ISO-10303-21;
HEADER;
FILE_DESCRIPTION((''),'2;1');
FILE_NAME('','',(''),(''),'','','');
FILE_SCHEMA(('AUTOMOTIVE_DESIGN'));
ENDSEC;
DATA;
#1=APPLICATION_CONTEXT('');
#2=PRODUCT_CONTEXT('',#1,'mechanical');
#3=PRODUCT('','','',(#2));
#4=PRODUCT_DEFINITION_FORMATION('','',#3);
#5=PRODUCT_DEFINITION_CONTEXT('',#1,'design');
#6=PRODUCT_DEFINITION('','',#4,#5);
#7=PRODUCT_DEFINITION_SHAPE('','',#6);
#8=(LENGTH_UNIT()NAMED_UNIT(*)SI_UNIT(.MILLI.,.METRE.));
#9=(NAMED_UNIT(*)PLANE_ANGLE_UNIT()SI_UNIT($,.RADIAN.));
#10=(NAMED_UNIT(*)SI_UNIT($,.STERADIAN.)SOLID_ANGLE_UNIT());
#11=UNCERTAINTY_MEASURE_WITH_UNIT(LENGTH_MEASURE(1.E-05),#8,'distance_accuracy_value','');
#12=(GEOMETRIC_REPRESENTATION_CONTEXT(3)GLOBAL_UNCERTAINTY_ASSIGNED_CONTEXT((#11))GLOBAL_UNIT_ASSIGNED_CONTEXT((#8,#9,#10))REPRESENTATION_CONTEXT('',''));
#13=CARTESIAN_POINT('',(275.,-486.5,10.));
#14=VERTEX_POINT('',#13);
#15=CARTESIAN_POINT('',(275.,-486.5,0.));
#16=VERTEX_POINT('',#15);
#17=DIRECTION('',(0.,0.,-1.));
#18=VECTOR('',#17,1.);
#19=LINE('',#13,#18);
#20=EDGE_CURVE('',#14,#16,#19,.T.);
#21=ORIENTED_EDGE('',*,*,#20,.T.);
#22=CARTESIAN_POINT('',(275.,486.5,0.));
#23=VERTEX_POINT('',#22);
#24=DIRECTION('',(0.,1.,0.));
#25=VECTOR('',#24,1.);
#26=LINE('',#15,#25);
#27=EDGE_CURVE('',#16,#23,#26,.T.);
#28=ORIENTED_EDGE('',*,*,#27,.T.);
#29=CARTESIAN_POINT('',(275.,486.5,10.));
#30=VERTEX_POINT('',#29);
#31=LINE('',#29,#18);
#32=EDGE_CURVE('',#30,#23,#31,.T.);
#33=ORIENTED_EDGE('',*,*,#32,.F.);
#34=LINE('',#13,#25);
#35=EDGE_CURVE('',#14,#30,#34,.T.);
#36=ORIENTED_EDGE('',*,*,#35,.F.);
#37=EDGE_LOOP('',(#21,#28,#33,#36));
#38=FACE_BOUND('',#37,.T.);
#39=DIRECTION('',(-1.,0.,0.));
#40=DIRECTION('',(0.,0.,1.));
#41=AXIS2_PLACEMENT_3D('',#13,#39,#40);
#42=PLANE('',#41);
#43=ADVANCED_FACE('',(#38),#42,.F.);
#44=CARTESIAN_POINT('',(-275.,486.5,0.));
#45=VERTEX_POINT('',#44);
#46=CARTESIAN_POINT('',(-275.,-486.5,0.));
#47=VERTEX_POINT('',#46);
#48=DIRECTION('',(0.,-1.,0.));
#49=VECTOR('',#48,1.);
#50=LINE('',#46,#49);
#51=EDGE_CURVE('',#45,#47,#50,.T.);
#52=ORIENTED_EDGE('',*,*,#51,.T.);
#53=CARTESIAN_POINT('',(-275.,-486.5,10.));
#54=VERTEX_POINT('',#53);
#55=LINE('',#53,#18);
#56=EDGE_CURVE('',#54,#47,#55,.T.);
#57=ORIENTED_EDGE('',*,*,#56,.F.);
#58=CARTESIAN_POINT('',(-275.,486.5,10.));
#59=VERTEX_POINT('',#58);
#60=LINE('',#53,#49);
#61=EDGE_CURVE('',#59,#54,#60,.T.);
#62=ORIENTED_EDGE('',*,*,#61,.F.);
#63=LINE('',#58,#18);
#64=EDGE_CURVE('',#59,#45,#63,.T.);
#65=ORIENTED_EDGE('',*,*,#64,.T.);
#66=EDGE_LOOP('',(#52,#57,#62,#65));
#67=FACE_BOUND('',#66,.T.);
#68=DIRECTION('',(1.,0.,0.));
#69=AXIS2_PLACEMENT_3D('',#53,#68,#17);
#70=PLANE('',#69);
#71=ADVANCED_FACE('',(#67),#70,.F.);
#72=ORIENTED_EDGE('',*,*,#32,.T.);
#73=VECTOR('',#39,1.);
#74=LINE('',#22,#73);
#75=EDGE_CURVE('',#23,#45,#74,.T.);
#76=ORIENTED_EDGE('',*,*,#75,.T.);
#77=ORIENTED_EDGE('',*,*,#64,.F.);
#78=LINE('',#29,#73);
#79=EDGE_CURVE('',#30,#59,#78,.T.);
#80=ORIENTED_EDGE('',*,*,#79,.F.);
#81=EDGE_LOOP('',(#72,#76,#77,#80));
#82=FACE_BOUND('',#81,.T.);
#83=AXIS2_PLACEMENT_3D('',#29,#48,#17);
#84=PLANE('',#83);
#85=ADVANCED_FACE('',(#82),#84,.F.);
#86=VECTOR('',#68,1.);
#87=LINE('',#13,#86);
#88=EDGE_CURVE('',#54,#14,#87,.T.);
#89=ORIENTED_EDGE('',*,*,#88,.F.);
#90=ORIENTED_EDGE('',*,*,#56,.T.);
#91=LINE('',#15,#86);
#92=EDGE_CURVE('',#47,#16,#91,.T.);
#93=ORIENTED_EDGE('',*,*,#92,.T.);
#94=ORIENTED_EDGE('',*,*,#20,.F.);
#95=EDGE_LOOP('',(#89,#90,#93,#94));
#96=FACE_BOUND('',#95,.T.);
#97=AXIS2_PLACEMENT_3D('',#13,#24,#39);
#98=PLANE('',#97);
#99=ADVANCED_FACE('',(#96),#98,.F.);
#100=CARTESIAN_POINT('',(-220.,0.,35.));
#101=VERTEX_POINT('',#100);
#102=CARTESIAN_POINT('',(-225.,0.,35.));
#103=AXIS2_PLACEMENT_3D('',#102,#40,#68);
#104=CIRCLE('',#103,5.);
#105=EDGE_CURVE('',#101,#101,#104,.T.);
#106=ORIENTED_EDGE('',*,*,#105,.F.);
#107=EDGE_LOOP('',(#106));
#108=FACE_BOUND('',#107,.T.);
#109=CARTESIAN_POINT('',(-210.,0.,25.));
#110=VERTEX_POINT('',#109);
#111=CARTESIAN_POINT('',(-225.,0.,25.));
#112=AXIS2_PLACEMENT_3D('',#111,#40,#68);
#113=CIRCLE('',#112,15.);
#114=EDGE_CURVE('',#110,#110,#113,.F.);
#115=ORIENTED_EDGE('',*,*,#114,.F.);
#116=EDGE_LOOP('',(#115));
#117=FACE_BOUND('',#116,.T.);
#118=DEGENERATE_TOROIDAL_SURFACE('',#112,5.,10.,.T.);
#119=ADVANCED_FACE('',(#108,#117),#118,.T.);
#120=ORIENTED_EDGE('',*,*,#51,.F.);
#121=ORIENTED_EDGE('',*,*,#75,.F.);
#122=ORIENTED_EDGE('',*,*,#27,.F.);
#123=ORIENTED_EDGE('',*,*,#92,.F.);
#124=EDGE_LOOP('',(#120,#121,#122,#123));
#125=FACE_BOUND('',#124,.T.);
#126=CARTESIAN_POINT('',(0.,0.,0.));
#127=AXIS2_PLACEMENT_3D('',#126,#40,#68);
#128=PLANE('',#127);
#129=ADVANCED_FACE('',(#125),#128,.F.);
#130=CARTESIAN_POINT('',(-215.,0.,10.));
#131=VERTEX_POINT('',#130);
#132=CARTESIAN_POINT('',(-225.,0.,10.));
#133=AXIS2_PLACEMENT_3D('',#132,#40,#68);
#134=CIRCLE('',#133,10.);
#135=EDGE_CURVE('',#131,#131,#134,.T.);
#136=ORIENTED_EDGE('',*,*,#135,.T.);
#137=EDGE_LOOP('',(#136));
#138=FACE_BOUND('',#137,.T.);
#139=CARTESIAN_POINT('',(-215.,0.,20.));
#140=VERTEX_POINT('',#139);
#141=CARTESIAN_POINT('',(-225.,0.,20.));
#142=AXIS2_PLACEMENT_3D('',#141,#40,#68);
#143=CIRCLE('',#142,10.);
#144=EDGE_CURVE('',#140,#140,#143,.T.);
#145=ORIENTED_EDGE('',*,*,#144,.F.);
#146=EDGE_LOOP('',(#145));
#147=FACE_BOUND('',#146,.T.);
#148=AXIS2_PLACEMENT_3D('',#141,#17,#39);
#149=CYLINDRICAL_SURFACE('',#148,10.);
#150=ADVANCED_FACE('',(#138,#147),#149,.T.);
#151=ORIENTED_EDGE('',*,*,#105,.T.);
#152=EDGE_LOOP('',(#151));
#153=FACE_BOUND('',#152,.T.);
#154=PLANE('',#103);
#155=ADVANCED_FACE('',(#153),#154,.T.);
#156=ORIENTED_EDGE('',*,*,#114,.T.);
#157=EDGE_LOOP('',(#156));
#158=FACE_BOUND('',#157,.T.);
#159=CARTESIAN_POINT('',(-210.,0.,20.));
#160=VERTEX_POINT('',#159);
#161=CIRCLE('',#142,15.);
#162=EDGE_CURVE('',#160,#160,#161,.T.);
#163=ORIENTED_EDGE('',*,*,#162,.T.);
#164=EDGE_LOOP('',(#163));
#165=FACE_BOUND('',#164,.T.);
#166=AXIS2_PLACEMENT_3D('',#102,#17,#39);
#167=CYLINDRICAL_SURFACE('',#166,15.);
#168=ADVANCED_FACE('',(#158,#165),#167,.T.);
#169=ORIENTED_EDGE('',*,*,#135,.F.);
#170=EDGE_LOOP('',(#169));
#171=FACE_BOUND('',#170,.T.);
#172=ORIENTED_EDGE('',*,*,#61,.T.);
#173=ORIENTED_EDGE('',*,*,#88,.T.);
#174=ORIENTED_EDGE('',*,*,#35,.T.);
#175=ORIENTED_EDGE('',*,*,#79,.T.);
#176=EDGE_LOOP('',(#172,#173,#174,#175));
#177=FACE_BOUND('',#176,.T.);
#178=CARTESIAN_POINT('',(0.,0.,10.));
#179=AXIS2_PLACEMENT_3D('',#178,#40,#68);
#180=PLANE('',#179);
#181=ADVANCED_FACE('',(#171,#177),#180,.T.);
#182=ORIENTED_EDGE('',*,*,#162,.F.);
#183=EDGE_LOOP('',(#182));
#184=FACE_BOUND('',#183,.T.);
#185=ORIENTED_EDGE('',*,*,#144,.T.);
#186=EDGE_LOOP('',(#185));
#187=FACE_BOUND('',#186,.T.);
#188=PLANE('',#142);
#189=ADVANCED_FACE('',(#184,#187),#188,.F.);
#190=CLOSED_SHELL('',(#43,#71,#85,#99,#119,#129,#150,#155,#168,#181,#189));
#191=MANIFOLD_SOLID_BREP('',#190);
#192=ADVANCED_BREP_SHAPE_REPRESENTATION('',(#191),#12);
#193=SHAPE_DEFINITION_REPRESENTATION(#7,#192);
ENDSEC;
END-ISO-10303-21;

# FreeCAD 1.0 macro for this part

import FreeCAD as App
import Part
import Sketcher
Q = App.Units.Quantity


def edges_at(feature, points):
    """Names of the edges that pass closest to the given points."""
    edges = feature.Shape.Edges
    near = lambda p: min(range(len(edges)), key=lambda i: edges[i].distToShape(Part.Vertex(*p))[0])
    return sorted({f"Edge{near(p) + 1}" for p in points})

doc = App.newDocument("Part")
body = doc.addObject("PartDesign::Body", "Body")

# Sketch on XY plane
sketch1 = doc.addObject("Sketcher::SketchObject", "Sketch")
body.addObject(sketch1)
sketch1.AttachmentSupport = (doc.XY_Plane, [""])
sketch1.MapMode = "FlatFace"
sketch1.addGeometry(Part.LineSegment(App.Vector(-275, 486, 0), App.Vector(-275, -486, 0)), False)
sketch1.addGeometry(Part.LineSegment(App.Vector(-275, -486, 0), App.Vector(275, -486, 0)), False)
sketch1.addGeometry(Part.LineSegment(App.Vector(275, -486, 0), App.Vector(275, 486, 0)), False)
sketch1.addGeometry(Part.LineSegment(App.Vector(275, 486, 0), App.Vector(-275, 486, 0)), False)
sketch1.addConstraint(Sketcher.Constraint("Coincident", 0, 2, 1, 1))
sketch1.addConstraint(Sketcher.Constraint("Coincident", 1, 2, 2, 1))
sketch1.addConstraint(Sketcher.Constraint("Coincident", 2, 2, 3, 1))
sketch1.addConstraint(Sketcher.Constraint("Coincident", 3, 2, 0, 1))
sketch1.addConstraint(Sketcher.Constraint("Vertical", 0))
sketch1.addConstraint(Sketcher.Constraint("Horizontal", 1))
sketch1.addConstraint(Sketcher.Constraint("Vertical", 2))
sketch1.addConstraint(Sketcher.Constraint("Horizontal", 3))
sketch1.addConstraint(Sketcher.Constraint("Symmetric", 0, 2, 2, 2, -1, 1))
sketch1.addConstraint(Sketcher.Constraint("DistanceX", 1, 1, 1, 2, Q("550 mm")))
sketch1.addConstraint(Sketcher.Constraint("DistanceY", 0, 2, 0, 1, Q("973 mm")))
pad1 = doc.addObject("PartDesign::Pad", "Pad")
body.addObject(pad1)
pad1.Profile = sketch1
pad1.Length = 10

# Sketch on XY plane
sketch2 = doc.addObject("Sketcher::SketchObject", "Sketch001")
body.addObject(sketch2)
sketch2.AttachmentSupport = (doc.XY_Plane, [""])
sketch2.MapMode = "FlatFace"
sketch2.AttachmentOffset = App.Placement(App.Vector(0, 0, 10), App.Rotation())
sketch2.addGeometry(Part.Circle(App.Vector(-225, 0, 0), App.Vector(0, 0, 1), 10), False)
sketch2.addConstraint(Sketcher.Constraint("PointOnObject", 0, 3, -1))
sketch2.addConstraint(Sketcher.Constraint("Diameter", 0, Q("20 mm")))
sketch2.addConstraint(Sketcher.Constraint("DistanceX", 0, 3, -1, 1, Q("225 mm")))
pad2 = doc.addObject("PartDesign::Pad", "Pad001")
body.addObject(pad2)
pad2.Profile = sketch2
pad2.Length = 10

# Sketch on XY plane
sketch3 = doc.addObject("Sketcher::SketchObject", "Sketch002")
body.addObject(sketch3)
sketch3.AttachmentSupport = (doc.XY_Plane, [""])
sketch3.MapMode = "FlatFace"
sketch3.AttachmentOffset = App.Placement(App.Vector(0, 0, 20), App.Rotation())
sketch3.addGeometry(Part.Circle(App.Vector(-225, 0, 0), App.Vector(0, 0, 1), 15), False)
sketch3.addConstraint(Sketcher.Constraint("PointOnObject", 0, 3, -1))
sketch3.addConstraint(Sketcher.Constraint("Diameter", 0, Q("30 mm")))
sketch3.addConstraint(Sketcher.Constraint("DistanceX", 0, 3, -1, 1, Q("225 mm")))
pad3 = doc.addObject("PartDesign::Pad", "Pad002")
body.addObject(pad3)
pad3.Profile = sketch3
pad3.Length = 15
doc.recompute()

fillet = doc.addObject("PartDesign::Fillet", "Fillet")
body.addObject(fillet)
fillet.Base = (pad3, edges_at(pad3, [(-240, 0, 35)]))
fillet.Radius = 10

doc.recompute()
